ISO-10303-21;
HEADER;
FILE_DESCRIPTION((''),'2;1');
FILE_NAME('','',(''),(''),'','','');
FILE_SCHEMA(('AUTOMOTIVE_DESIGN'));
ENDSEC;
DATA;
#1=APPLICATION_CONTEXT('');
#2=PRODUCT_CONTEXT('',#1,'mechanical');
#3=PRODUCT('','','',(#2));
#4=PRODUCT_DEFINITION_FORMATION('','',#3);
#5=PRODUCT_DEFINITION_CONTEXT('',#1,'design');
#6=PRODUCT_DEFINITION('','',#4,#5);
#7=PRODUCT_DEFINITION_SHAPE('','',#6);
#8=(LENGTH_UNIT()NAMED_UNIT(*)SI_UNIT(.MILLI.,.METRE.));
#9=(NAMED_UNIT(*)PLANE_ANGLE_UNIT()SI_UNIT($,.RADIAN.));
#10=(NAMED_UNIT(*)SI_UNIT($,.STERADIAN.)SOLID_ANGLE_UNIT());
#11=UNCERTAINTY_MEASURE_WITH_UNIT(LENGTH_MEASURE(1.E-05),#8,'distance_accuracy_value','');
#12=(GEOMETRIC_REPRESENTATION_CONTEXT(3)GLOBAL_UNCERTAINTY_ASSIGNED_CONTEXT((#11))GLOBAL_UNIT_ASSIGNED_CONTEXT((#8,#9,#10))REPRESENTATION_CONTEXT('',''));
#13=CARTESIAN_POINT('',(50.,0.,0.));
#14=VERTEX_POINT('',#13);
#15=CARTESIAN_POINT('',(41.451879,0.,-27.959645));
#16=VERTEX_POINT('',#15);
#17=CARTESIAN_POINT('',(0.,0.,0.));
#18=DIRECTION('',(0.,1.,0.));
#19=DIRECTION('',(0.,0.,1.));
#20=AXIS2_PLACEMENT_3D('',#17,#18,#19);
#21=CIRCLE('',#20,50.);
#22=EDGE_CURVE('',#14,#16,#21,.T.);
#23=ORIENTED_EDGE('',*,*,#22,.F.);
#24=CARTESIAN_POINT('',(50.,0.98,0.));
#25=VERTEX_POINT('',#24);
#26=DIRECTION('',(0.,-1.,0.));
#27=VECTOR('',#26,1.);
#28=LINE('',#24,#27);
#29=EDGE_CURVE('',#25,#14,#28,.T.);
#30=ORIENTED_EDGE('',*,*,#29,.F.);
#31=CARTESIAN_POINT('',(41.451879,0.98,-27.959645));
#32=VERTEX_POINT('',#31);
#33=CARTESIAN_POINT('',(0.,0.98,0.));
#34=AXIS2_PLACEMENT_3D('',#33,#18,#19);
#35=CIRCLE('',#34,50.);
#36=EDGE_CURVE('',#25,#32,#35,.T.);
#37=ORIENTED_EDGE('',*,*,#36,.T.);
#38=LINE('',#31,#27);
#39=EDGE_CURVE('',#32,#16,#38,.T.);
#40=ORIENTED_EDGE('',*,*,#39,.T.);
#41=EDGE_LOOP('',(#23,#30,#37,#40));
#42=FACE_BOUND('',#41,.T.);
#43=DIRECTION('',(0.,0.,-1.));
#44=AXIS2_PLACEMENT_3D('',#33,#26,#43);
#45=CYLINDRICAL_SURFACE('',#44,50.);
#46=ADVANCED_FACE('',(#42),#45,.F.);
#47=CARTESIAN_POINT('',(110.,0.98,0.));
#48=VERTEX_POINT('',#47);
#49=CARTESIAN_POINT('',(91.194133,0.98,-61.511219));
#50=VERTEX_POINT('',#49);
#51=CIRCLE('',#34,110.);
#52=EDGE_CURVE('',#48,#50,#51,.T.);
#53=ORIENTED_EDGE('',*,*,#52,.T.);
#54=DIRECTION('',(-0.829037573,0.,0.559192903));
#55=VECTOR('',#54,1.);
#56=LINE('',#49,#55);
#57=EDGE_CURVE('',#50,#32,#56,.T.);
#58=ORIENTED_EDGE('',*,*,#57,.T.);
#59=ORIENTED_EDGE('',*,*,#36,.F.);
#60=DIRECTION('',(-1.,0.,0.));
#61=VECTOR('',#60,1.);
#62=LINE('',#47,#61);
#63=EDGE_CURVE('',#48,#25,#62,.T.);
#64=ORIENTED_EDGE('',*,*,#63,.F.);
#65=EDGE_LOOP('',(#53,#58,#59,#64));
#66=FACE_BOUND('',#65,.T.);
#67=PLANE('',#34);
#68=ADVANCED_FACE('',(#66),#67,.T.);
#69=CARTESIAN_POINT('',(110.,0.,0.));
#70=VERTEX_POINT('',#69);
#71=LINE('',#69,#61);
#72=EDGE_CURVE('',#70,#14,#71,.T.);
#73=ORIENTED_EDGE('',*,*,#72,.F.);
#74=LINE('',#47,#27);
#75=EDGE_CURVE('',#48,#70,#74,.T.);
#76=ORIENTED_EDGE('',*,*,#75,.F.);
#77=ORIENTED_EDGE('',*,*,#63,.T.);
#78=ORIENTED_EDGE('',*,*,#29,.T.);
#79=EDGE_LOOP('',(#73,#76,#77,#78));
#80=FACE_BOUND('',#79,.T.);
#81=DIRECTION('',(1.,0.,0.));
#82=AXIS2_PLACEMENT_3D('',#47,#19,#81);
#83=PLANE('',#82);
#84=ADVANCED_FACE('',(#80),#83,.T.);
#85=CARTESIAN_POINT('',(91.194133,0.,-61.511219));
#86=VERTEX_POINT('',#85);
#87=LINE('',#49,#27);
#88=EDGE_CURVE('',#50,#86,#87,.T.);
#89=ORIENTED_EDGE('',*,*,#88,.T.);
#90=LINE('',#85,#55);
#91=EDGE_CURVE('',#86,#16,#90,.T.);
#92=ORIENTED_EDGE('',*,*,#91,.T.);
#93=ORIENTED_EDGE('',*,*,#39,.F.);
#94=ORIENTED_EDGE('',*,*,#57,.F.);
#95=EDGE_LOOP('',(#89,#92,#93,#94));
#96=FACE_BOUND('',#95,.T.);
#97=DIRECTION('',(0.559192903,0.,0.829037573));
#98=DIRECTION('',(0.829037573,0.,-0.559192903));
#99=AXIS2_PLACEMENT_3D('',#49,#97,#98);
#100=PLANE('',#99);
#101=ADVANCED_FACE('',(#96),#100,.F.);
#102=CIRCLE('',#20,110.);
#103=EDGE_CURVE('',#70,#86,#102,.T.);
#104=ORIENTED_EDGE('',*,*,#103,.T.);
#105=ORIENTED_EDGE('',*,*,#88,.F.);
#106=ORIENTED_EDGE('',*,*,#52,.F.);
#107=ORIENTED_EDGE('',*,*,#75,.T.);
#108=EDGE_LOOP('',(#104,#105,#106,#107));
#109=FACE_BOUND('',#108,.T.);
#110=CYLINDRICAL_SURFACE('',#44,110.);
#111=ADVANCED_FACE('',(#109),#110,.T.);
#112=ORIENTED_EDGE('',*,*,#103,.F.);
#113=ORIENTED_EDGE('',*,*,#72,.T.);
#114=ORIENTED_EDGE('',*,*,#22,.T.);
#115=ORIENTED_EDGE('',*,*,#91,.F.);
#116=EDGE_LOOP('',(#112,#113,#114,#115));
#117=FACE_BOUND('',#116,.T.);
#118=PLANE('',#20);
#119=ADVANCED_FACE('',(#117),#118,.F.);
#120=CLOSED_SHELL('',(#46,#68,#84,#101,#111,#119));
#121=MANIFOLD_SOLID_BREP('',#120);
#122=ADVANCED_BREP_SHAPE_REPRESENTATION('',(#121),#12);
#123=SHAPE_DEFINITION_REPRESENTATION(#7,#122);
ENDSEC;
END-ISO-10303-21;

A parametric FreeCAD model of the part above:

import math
import FreeCAD as App
import Part
import Sketcher

V = App.Vector
Q = App.Units.Quantity

doc = App.newDocument("Part")
body = doc.addObject("PartDesign::Body", "Body")

# Sketch on XZ plane
sketch1 = body.newObject("Sketcher::SketchObject", "Sketch")
sketch1.AttachmentSupport = (doc.getObject("XZ_Plane"), [""])
sketch1.MapMode = "FlatFace"
sketch1.addGeometry(Part.LineSegment(V(91, -62, 0), V(41, -28, 0)), False)
sketch1.addGeometry(Part.ArcOfCircle(Part.Circle(V(0, 0, 0), V(0, 0, 1), 50), math.radians(-34), math.radians(0)), False)
sketch1.addGeometry(Part.LineSegment(V(50, 0, 0), V(110, 0, 0)), False)
sketch1.addGeometry(Part.ArcOfCircle(Part.Circle(V(0, 0, 0), V(0, 0, 1), 110), math.radians(-34), math.radians(0)), False)
sketch1.addConstraint(Sketcher.Constraint("Coincident", 0, 2, 1, 1))
sketch1.addConstraint(Sketcher.Constraint("Coincident", 1, 2, 2, 1))
sketch1.addConstraint(Sketcher.Constraint("Coincident", 2, 2, 3, 2))
sketch1.addConstraint(Sketcher.Constraint("Coincident", 3, 1, 0, 1))
sketch1.addConstraint(Sketcher.Constraint("Horizontal", 2))
sketch1.addConstraint(Sketcher.Constraint("Coincident", 1, 3, -1, 1))
sketch1.addConstraint(Sketcher.Constraint("Coincident", 3, 3, -1, 1))
sketch1.addConstraint(Sketcher.Constraint("PointOnObject", 1, 2, -1))
sketch1.addConstraint(Sketcher.Constraint("Radius", 1, 50.0))
sketch1.addConstraint(Sketcher.Constraint("Radius", 3, 110.0))
sketch1.addConstraint(Sketcher.Constraint("Angle", 0, Q("146 deg")))
sketch1.addConstraint(Sketcher.Constraint("DistanceX", -1, 1, 0, 2, 41.451879))
pad1 = body.newObject("PartDesign::Pad", "Pad")
pad1.Profile = sketch1
pad1.Length = 0.98
pad1.Reversed = True

doc.recompute()
